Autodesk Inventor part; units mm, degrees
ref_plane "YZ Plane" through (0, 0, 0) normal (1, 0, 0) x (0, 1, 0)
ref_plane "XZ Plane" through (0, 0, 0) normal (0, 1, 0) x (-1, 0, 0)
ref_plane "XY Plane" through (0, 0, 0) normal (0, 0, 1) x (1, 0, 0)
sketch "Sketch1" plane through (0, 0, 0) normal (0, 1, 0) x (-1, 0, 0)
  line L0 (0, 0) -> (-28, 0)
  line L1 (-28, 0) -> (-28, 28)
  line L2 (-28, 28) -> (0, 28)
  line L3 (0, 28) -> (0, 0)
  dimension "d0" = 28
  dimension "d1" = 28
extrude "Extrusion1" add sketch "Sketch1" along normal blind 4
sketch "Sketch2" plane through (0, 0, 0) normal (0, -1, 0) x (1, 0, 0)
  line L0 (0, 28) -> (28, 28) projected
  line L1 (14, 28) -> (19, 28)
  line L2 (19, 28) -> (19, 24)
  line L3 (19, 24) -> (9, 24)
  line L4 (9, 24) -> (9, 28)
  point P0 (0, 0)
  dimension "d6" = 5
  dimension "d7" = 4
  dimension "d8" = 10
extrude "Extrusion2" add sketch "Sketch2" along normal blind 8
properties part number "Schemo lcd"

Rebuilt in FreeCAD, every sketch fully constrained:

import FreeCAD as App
import Part
import Sketcher

V = App.Vector


def add_polygon(sketch, points):
    """Adds a closed chain of lines whose ends are joined by coincident constraints."""
    first, n = sketch.GeometryCount, len(points)
    for a, b in zip(points, points[1:] + points[:1]):
        sketch.addGeometry(Part.LineSegment(App.Vector(*a, 0), App.Vector(*b, 0)), False)
    for i in range(n):
        sketch.addConstraint(Sketcher.Constraint("Coincident", first + i, 2, first + (i + 1) % n, 1))

doc = App.newDocument("Part")
body = doc.addObject("PartDesign::Body", "Body")

sketch1 = body.newObject("Sketcher::SketchObject", "Sketch")
sketch1.AttachmentSupport = (doc.getObject("XZ_Plane"), [""])
sketch1.MapMode = "FlatFace"
add_polygon(sketch1, [(28, 0), (0, 0), (0, 28), (28, 28)])
sketch1.addConstraint(Sketcher.Constraint("Horizontal", 0))
sketch1.addConstraint(Sketcher.Constraint("Vertical", 1))
sketch1.addConstraint(Sketcher.Constraint("Horizontal", 2))
sketch1.addConstraint(Sketcher.Constraint("Vertical", 3))
sketch1.addConstraint(Sketcher.Constraint("Coincident", 0, 2, -1, 1))
sketch1.addConstraint(Sketcher.Constraint("Equal", 2, 1))
sketch1.addConstraint(Sketcher.Constraint("DistanceX", 0, 2, 0, 1, 28.0))
pad1 = body.newObject("PartDesign::Pad", "Pad")
pad1.Profile = sketch1
pad1.Length = 4
pad1.Reversed = True

sketch2 = body.newObject("Sketcher::SketchObject", "Sketch001")
sketch2.AttachmentSupport = (doc.getObject("XZ_Plane"), [""])
sketch2.MapMode = "FlatFace"
add_polygon(sketch2, [(19, 28), (9, 28), (9, 24), (19, 24)])
sketch2.addConstraint(Sketcher.Constraint("Horizontal", 0))
sketch2.addConstraint(Sketcher.Constraint("Vertical", 1))
sketch2.addConstraint(Sketcher.Constraint("Horizontal", 2))
sketch2.addConstraint(Sketcher.Constraint("Vertical", 3))
sketch2.addConstraint(Sketcher.Constraint("DistanceX", 0, 2, 0, 1, 10.0))
sketch2.addConstraint(Sketcher.Constraint("DistanceY", 1, 2, 1, 1, 4.0))
sketch2.addConstraint(Sketcher.Constraint("DistanceX", -1, 1, 0, 2, 9.0))
sketch2.addConstraint(Sketcher.Constraint("DistanceY", -1, 1, 0, 2, 28.0))
pad2 = body.newObject("PartDesign::Pad", "Pad001")
pad2.Profile = sketch2
pad2.Length = 8

doc.recompute()
